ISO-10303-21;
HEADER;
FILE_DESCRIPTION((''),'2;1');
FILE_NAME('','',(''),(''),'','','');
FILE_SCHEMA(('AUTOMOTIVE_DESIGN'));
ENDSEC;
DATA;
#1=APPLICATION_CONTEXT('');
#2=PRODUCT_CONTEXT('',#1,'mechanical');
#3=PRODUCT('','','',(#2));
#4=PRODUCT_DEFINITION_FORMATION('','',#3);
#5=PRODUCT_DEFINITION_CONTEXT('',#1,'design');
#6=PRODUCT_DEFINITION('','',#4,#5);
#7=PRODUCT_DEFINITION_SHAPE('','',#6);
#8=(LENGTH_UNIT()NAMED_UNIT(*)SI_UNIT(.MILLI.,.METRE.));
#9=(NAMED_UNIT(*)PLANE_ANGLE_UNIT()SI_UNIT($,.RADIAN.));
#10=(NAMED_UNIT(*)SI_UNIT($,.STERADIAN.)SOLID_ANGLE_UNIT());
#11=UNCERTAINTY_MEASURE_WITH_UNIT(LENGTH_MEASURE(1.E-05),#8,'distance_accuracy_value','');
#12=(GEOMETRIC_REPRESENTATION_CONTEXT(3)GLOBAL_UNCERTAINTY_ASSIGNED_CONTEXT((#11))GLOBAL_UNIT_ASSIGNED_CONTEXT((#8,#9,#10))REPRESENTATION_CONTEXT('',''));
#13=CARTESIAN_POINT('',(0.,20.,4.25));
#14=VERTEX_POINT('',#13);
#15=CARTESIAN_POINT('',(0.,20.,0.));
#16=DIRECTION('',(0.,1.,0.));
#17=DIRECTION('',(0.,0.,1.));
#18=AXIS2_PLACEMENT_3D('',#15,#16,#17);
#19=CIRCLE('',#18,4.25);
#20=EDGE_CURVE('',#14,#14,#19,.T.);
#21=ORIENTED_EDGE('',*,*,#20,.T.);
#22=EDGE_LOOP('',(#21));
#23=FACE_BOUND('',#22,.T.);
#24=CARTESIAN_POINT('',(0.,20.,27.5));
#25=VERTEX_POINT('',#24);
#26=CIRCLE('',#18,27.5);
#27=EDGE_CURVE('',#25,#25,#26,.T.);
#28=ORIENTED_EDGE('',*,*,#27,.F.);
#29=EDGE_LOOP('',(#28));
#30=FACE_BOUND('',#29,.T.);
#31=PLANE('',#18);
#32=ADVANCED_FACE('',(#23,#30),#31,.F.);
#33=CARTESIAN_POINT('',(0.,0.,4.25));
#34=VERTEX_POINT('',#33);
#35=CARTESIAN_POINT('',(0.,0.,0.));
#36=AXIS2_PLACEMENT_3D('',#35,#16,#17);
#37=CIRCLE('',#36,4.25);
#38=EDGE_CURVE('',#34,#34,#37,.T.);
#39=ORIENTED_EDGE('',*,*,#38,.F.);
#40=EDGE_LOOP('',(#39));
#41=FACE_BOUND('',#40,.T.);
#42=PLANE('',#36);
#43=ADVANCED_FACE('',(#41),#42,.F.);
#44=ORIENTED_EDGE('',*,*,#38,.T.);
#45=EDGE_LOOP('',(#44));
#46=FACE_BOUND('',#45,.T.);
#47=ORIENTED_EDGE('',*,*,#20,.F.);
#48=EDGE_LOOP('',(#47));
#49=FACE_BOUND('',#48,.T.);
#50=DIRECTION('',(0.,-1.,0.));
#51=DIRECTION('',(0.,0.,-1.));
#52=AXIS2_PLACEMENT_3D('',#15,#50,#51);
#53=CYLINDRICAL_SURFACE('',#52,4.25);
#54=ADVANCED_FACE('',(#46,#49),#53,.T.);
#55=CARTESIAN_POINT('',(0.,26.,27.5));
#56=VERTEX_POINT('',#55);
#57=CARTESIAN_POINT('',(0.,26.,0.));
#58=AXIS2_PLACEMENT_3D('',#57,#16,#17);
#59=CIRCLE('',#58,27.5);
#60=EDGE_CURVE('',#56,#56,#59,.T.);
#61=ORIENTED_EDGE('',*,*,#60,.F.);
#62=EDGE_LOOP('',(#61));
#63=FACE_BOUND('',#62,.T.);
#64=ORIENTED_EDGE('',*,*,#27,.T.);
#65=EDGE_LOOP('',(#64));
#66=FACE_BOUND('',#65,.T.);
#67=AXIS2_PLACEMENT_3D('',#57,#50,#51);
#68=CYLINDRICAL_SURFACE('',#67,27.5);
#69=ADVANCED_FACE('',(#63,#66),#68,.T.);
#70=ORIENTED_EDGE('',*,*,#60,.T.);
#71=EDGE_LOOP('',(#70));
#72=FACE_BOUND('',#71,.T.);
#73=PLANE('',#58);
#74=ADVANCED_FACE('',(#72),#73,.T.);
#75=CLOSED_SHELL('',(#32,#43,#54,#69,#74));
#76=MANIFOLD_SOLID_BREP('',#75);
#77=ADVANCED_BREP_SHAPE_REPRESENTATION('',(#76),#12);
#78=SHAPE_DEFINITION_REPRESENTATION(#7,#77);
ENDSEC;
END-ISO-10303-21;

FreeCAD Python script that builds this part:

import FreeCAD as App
import Part
import Sketcher
from FreeCAD import Vector

doc = App.newDocument("Part")
body = doc.addObject("PartDesign::Body", "Body")

# Sketch on XZ plane
sketch1 = body.newObject("Sketcher::SketchObject", "Sketch")
sketch1.AttachmentSupport = (doc.getObject("XZ_Plane"), [""])
sketch1.MapMode = "FlatFace"
sketch1.addGeometry(Part.Circle(Vector(0, 0, 0), Vector(0, 0, 1), 4.2), False)
sketch1.addConstraint([
    Sketcher.Constraint("Coincident", 0, 3, -1, 1),
    Sketcher.Constraint("Diameter", 0, 8.5),
])
pad1 = body.newObject("PartDesign::Pad", "Pad")
pad1.Profile = sketch1
pad1.Length = 20
pad1.Reversed = True

# Sketch on XZ plane
sketch2 = body.newObject("Sketcher::SketchObject", "Sketch001")
sketch2.AttachmentSupport = (doc.getObject("XZ_Plane"), [""])
sketch2.MapMode = "FlatFace"
sketch2.AttachmentOffset = App.Placement(Vector(0, 0, -20), App.Rotation())
sketch2.addGeometry(Part.Circle(Vector(0, 0, 0), Vector(0, 0, 1), 28), False)
sketch2.addConstraint([
    Sketcher.Constraint("Coincident", 0, 3, -1, 1),
    Sketcher.Constraint("Diameter", 0, 55.0),
])
pad2 = body.newObject("PartDesign::Pad", "Pad001")
pad2.Profile = sketch2
pad2.Length = 6
pad2.Reversed = True

doc.recompute()
